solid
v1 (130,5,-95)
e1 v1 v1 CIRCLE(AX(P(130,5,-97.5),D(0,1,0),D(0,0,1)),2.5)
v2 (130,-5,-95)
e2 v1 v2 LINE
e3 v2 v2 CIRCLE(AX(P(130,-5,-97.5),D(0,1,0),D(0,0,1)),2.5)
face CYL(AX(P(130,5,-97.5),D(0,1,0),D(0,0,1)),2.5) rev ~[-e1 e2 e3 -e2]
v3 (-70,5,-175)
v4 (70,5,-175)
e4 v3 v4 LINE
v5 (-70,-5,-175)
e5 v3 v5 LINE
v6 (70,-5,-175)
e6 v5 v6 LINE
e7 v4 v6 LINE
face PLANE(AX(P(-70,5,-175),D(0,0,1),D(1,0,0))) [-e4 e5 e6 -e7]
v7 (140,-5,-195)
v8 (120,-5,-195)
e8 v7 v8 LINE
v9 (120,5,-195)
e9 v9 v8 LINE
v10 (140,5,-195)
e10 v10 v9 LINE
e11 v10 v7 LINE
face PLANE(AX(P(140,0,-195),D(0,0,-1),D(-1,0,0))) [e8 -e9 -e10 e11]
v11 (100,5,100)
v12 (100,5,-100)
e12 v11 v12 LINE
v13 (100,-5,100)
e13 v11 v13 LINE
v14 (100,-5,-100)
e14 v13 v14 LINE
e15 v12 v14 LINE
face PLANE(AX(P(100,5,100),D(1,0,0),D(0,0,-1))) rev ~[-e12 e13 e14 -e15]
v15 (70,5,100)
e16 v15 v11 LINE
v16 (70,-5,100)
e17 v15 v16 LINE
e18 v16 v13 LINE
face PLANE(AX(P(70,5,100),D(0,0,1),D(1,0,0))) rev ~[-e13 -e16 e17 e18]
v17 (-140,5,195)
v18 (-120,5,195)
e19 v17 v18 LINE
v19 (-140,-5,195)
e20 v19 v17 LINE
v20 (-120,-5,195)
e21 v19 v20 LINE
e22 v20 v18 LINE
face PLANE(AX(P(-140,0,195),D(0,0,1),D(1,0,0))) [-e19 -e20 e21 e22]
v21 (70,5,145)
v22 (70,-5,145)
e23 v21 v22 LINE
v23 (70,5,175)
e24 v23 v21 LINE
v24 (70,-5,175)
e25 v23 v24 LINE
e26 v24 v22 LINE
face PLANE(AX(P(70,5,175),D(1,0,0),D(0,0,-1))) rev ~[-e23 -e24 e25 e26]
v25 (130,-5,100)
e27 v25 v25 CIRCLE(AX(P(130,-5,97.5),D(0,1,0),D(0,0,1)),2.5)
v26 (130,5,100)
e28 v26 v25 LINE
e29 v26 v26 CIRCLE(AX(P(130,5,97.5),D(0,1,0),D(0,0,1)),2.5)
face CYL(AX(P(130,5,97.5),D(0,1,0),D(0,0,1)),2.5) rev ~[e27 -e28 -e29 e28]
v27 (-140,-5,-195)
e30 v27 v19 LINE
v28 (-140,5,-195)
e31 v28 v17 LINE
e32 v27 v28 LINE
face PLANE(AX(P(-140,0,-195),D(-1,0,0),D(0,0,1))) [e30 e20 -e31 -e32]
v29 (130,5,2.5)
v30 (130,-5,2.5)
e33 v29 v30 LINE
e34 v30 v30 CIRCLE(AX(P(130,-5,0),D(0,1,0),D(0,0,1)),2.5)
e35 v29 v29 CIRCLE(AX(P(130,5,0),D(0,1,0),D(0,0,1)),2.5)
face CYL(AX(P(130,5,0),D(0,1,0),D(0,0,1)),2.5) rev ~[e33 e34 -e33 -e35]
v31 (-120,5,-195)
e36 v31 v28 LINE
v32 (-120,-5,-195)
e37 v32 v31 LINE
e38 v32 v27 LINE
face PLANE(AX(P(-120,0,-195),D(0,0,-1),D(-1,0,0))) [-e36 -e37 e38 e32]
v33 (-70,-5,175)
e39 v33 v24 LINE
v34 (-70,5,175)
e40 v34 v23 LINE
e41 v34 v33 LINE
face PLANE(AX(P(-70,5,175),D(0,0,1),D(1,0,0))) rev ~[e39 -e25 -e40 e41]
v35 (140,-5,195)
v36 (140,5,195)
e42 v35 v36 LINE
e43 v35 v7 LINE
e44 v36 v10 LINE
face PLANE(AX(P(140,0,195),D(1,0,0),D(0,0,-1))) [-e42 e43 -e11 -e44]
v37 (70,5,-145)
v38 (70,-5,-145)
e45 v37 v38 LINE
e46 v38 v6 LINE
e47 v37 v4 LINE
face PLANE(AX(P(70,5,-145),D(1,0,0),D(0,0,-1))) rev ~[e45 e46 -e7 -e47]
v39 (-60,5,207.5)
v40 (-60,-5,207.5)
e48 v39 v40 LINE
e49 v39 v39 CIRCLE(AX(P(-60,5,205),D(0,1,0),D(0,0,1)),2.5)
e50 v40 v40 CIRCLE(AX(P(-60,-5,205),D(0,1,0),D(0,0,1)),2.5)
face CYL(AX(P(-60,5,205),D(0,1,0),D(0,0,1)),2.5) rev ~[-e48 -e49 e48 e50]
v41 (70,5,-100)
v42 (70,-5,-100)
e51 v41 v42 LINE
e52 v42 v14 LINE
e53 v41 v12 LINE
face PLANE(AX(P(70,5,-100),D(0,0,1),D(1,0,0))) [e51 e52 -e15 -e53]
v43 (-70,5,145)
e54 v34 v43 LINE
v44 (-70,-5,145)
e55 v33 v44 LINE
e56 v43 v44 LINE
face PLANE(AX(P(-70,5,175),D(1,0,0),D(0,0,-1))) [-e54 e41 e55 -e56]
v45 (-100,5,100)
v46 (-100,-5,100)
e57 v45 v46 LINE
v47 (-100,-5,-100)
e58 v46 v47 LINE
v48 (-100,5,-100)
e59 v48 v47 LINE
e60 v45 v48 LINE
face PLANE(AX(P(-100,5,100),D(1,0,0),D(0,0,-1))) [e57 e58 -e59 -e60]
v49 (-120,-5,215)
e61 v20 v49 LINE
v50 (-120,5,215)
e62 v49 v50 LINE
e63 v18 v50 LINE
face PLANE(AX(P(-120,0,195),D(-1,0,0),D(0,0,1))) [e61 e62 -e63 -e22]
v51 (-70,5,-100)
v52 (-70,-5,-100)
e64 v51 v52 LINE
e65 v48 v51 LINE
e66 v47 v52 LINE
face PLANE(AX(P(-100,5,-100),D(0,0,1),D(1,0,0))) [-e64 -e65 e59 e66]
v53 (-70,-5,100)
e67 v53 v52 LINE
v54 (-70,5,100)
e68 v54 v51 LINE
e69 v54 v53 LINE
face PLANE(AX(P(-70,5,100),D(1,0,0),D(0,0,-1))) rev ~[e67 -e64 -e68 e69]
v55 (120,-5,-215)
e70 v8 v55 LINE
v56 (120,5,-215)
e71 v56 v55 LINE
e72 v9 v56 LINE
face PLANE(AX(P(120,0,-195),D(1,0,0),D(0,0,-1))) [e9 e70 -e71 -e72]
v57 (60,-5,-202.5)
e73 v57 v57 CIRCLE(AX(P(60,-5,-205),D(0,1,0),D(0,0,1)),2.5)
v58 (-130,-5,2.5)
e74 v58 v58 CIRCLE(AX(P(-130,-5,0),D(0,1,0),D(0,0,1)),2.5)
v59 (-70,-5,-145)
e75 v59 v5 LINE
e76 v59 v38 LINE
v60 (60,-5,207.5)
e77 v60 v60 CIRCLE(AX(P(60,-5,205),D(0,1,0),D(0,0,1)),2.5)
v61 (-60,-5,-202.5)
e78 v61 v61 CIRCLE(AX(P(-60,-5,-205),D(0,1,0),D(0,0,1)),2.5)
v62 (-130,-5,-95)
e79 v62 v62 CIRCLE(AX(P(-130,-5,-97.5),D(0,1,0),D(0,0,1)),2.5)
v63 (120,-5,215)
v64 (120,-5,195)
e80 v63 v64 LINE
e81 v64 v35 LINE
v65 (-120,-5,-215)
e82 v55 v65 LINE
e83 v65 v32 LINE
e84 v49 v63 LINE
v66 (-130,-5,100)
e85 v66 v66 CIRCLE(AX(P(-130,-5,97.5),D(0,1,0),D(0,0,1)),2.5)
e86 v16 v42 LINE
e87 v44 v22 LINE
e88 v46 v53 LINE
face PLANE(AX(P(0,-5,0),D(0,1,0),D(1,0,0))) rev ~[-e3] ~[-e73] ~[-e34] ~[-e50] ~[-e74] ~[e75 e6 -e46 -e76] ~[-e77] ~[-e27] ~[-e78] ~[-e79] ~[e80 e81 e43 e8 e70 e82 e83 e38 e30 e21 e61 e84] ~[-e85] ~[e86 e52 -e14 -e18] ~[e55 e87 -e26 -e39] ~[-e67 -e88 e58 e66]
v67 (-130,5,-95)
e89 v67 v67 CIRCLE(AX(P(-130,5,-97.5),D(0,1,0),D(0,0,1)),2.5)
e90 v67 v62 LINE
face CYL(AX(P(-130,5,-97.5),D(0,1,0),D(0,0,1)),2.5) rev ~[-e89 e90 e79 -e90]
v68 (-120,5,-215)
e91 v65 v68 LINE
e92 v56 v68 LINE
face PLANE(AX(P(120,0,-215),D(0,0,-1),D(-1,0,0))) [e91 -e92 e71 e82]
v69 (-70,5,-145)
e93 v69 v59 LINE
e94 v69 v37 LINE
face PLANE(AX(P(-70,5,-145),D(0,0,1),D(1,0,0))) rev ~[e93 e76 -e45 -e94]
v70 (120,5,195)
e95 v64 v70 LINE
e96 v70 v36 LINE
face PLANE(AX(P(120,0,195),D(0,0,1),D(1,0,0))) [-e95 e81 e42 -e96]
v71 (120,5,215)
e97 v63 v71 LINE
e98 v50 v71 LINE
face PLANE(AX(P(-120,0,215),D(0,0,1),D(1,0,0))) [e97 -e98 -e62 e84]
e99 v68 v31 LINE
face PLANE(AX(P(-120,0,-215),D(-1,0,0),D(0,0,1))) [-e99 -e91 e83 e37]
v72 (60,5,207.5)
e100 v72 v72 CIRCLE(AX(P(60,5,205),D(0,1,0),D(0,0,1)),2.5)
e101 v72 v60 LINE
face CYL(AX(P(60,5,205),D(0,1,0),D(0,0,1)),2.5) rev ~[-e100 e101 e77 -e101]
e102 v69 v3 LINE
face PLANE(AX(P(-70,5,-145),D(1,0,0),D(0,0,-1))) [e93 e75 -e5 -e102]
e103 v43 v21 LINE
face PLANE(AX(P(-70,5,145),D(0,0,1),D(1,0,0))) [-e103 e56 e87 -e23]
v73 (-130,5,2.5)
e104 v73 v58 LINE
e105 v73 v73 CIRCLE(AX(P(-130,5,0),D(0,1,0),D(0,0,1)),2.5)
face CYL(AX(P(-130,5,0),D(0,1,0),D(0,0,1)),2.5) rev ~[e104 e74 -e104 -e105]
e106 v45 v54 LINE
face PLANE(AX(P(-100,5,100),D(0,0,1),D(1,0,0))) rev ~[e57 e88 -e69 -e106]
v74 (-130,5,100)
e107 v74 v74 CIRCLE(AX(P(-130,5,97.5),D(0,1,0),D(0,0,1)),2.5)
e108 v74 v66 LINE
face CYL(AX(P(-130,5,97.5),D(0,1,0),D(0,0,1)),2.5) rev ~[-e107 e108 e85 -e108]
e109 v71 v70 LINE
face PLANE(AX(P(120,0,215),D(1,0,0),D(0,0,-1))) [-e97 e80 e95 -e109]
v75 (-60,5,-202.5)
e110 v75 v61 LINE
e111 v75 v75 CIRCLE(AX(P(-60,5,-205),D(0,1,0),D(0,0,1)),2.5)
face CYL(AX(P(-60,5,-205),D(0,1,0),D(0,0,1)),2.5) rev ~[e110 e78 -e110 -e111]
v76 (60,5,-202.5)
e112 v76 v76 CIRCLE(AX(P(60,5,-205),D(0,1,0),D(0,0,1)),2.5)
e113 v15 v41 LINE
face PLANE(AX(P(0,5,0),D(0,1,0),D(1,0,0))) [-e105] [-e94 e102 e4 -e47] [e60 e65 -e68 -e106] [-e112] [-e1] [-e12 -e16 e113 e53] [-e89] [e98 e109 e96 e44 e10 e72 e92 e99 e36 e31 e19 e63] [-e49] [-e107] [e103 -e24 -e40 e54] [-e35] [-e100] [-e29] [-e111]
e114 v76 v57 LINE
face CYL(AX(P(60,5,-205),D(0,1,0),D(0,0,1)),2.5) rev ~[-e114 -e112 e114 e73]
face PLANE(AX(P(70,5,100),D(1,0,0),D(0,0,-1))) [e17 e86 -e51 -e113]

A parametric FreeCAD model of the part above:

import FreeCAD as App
import Part
import Sketcher

V = App.Vector

doc = App.newDocument("Part")
body = doc.addObject("PartDesign::Body", "Body")

# Sketch on XZ plane
sketch1 = body.newObject("Sketcher::SketchObject", "Sketch")
sketch1.AttachmentSupport = (doc.getObject("XZ_Plane"), [""])
sketch1.MapMode = "FlatFace"
sketch1.addGeometry(Part.LineSegment(V(120, -215, 0), V(-120, -215, 0)), False)
sketch1.addGeometry(Part.LineSegment(V(-120, -215, 0), V(-120, -195, 0)), False)
sketch1.addGeometry(Part.LineSegment(V(-120, -195, 0), V(-140, -195, 0)), False)
sketch1.addGeometry(Part.LineSegment(V(-140, -195, 0), V(-140, 195, 0)), False)
sketch1.addGeometry(Part.LineSegment(V(-140, 195, 0), V(-120, 195, 0)), False)
sketch1.addGeometry(Part.LineSegment(V(-120, 195, 0), V(-120, 215, 0)), False)
sketch1.addGeometry(Part.LineSegment(V(-120, 215, 0), V(120, 215, 0)), False)
sketch1.addGeometry(Part.LineSegment(V(120, 215, 0), V(120, 195, 0)), False)
sketch1.addGeometry(Part.LineSegment(V(120, 195, 0), V(140, 195, 0)), False)
sketch1.addGeometry(Part.LineSegment(V(140, 195, 0), V(140, -195, 0)), False)
sketch1.addGeometry(Part.LineSegment(V(140, -195, 0), V(120, -195, 0)), False)
sketch1.addGeometry(Part.LineSegment(V(120, -195, 0), V(120, -215, 0)), False)
sketch1.addConstraint(Sketcher.Constraint("Coincident", 0, 2, 1, 1))
sketch1.addConstraint(Sketcher.Constraint("Coincident", 1, 2, 2, 1))
sketch1.addConstraint(Sketcher.Constraint("Coincident", 2, 2, 3, 1))
sketch1.addConstraint(Sketcher.Constraint("Coincident", 3, 2, 4, 1))
sketch1.addConstraint(Sketcher.Constraint("Coincident", 4, 2, 5, 1))
sketch1.addConstraint(Sketcher.Constraint("Coincident", 5, 2, 6, 1))
sketch1.addConstraint(Sketcher.Constraint("Coincident", 6, 2, 7, 1))
sketch1.addConstraint(Sketcher.Constraint("Coincident", 7, 2, 8, 1))
sketch1.addConstraint(Sketcher.Constraint("Coincident", 8, 2, 9, 1))
sketch1.addConstraint(Sketcher.Constraint("Coincident", 9, 2, 10, 1))
sketch1.addConstraint(Sketcher.Constraint("Coincident", 10, 2, 11, 1))
sketch1.addConstraint(Sketcher.Constraint("Coincident", 11, 2, 0, 1))
sketch1.addConstraint(Sketcher.Constraint("Horizontal", 0))
sketch1.addConstraint(Sketcher.Constraint("Vertical", 1))
sketch1.addConstraint(Sketcher.Constraint("Horizontal", 2))
sketch1.addConstraint(Sketcher.Constraint("Vertical", 3))
sketch1.addConstraint(Sketcher.Constraint("Horizontal", 4))
sketch1.addConstraint(Sketcher.Constraint("Vertical", 5))
sketch1.addConstraint(Sketcher.Constraint("Horizontal", 6))
sketch1.addConstraint(Sketcher.Constraint("Vertical", 7))
sketch1.addConstraint(Sketcher.Constraint("Horizontal", 8))
sketch1.addConstraint(Sketcher.Constraint("Vertical", 9))
sketch1.addConstraint(Sketcher.Constraint("Horizontal", 10))
sketch1.addConstraint(Sketcher.Constraint("Vertical", 11))
sketch1.addConstraint(Sketcher.Constraint("Symmetric", 0, 2, 6, 2, -1, 1))
sketch1.addConstraint(Sketcher.Constraint("Symmetric", 2, 2, 8, 2, -1, 1))
sketch1.addConstraint(Sketcher.Constraint("Symmetric", 4, 2, 10, 2, -1, 1))
sketch1.addConstraint(Sketcher.Constraint("Symmetric", 4, 2, 7, 2, -2))
sketch1.addConstraint(Sketcher.Constraint("Equal", 10, 1))
sketch1.addConstraint(Sketcher.Constraint("DistanceX", 0, 2, 0, 1, 240.0))
sketch1.addConstraint(Sketcher.Constraint("DistanceX", 2, 2, 2, 1, 20.0))
sketch1.addConstraint(Sketcher.Constraint("DistanceY", 3, 1, 3, 2, 390.0))
pad1 = body.newObject("PartDesign::Pad", "Pad")
pad1.Profile = sketch1
pad1.Length = 10
pad1.Midplane = True

# Sketch on XZ plane
sketch2 = body.newObject("Sketcher::SketchObject", "Sketch001")
sketch2.AttachmentSupport = (doc.getObject("XZ_Plane"), [""])
sketch2.MapMode = "FlatFace"
sketch2.AttachmentOffset = App.Placement(V(0, 0, -5), App.Rotation())
sketch2.addGeometry(Part.Circle(V(-60, -205, 0), V(0, 0, 1), 2.5), False)
sketch2.addGeometry(Part.Circle(V(60, -205, 0), V(0, 0, 1), 2.5), False)
sketch2.addGeometry(Part.Circle(V(130, -97.5, 0), V(0, 0, 1), 2.5), False)
sketch2.addGeometry(Part.Circle(V(130, 97.5, 0), V(0, 0, 1), 2.5), False)
sketch2.addGeometry(Part.Circle(V(130, 0, 0), V(0, 0, 1), 2.5), False)
sketch2.addGeometry(Part.Circle(V(60, 205, 0), V(0, 0, 1), 2.5), False)
sketch2.addGeometry(Part.Circle(V(-60, 205, 0), V(0, 0, 1), 2.5), False)
sketch2.addGeometry(Part.Circle(V(-130, -97.5, 0), V(0, 0, 1), 2.5), False)
sketch2.addGeometry(Part.Circle(V(-130, 0, 0), V(0, 0, 1), 2.5), False)
sketch2.addGeometry(Part.Circle(V(-130, 97.5, 0), V(0, 0, 1), 2.5), False)
sketch2.addGeometry(Part.LineSegment(V(70, -100, 0), V(70, 100, 0)), False)
sketch2.addGeometry(Part.LineSegment(V(70, 100, 0), V(100, 100, 0)), False)
sketch2.addGeometry(Part.LineSegment(V(100, 100, 0), V(100, -100, 0)), False)
sketch2.addGeometry(Part.LineSegment(V(100, -100, 0), V(70, -100, 0)), False)
sketch2.addGeometry(Part.LineSegment(V(-100, -100, 0), V(-100, 100, 0)), False)
sketch2.addGeometry(Part.LineSegment(V(-100, 100, 0), V(-70, 100, 0)), False)
sketch2.addGeometry(Part.LineSegment(V(-70, 100, 0), V(-70, -100, 0)), False)
sketch2.addGeometry(Part.LineSegment(V(-70, -100, 0), V(-100, -100, 0)), False)
sketch2.addGeometry(Part.LineSegment(V(-70, -175, 0), V(-70, -145, 0)), False)
sketch2.addGeometry(Part.LineSegment(V(-70, -145, 0), V(70, -145, 0)), False)
sketch2.addGeometry(Part.LineSegment(V(70, -145, 0), V(70, -175, 0)), False)
sketch2.addGeometry(Part.LineSegment(V(70, -175, 0), V(-70, -175, 0)), False)
sketch2.addGeometry(Part.LineSegment(V(-70, 145, 0), V(-70, 175, 0)), False)
sketch2.addGeometry(Part.LineSegment(V(-70, 175, 0), V(70, 175, 0)), False)
sketch2.addGeometry(Part.LineSegment(V(70, 175, 0), V(70, 145, 0)), False)
sketch2.addGeometry(Part.LineSegment(V(70, 145, 0), V(-70, 145, 0)), False)
sketch2.addConstraint(Sketcher.Constraint("Coincident", 10, 2, 11, 1))
sketch2.addConstraint(Sketcher.Constraint("Coincident", 11, 2, 12, 1))
sketch2.addConstraint(Sketcher.Constraint("Coincident", 12, 2, 13, 1))
sketch2.addConstraint(Sketcher.Constraint("Coincident", 13, 2, 10, 1))
sketch2.addConstraint(Sketcher.Constraint("Coincident", 14, 2, 15, 1))
sketch2.addConstraint(Sketcher.Constraint("Coincident", 15, 2, 16, 1))
sketch2.addConstraint(Sketcher.Constraint("Coincident", 16, 2, 17, 1))
sketch2.addConstraint(Sketcher.Constraint("Coincident", 17, 2, 14, 1))
sketch2.addConstraint(Sketcher.Constraint("Coincident", 18, 2, 19, 1))
sketch2.addConstraint(Sketcher.Constraint("Coincident", 19, 2, 20, 1))
sketch2.addConstraint(Sketcher.Constraint("Coincident", 20, 2, 21, 1))
sketch2.addConstraint(Sketcher.Constraint("Coincident", 21, 2, 18, 1))
sketch2.addConstraint(Sketcher.Constraint("Coincident", 22, 2, 23, 1))
sketch2.addConstraint(Sketcher.Constraint("Coincident", 23, 2, 24, 1))
sketch2.addConstraint(Sketcher.Constraint("Coincident", 24, 2, 25, 1))
sketch2.addConstraint(Sketcher.Constraint("Coincident", 25, 2, 22, 1))
sketch2.addConstraint(Sketcher.Constraint("Vertical", 10))
sketch2.addConstraint(Sketcher.Constraint("Horizontal", 11))
sketch2.addConstraint(Sketcher.Constraint("Vertical", 12))
sketch2.addConstraint(Sketcher.Constraint("Horizontal", 13))
sketch2.addConstraint(Sketcher.Constraint("Vertical", 14))
sketch2.addConstraint(Sketcher.Constraint("Horizontal", 15))
sketch2.addConstraint(Sketcher.Constraint("Vertical", 16))
sketch2.addConstraint(Sketcher.Constraint("Horizontal", 17))
sketch2.addConstraint(Sketcher.Constraint("Vertical", 18))
sketch2.addConstraint(Sketcher.Constraint("Horizontal", 19))
sketch2.addConstraint(Sketcher.Constraint("Vertical", 20))
sketch2.addConstraint(Sketcher.Constraint("Horizontal", 21))
sketch2.addConstraint(Sketcher.Constraint("Vertical", 22))
sketch2.addConstraint(Sketcher.Constraint("Horizontal", 23))
sketch2.addConstraint(Sketcher.Constraint("Vertical", 24))
sketch2.addConstraint(Sketcher.Constraint("Horizontal", 25))
sketch2.addConstraint(Sketcher.Constraint("Equal", 0, 1))
sketch2.addConstraint(Sketcher.Constraint("Equal", 1, 2))
sketch2.addConstraint(Sketcher.Constraint("Equal", 2, 3))
sketch2.addConstraint(Sketcher.Constraint("Equal", 3, 4))
sketch2.addConstraint(Sketcher.Constraint("Equal", 4, 5))
sketch2.addConstraint(Sketcher.Constraint("Equal", 5, 6))
sketch2.addConstraint(Sketcher.Constraint("Equal", 6, 7))
sketch2.addConstraint(Sketcher.Constraint("Equal", 7, 8))
sketch2.addConstraint(Sketcher.Constraint("Equal", 8, 9))
sketch2.addConstraint(Sketcher.Constraint("Symmetric", 0, 3, 5, 3, -1, 1))
sketch2.addConstraint(Sketcher.Constraint("Symmetric", 1, 3, 6, 3, -1, 1))
sketch2.addConstraint(Sketcher.Constraint("Symmetric", 3, 3, 7, 3, -1, 1))
sketch2.addConstraint(Sketcher.Constraint("Symmetric", 4, 3, 8, 3, -1, 1))
sketch2.addConstraint(Sketcher.Constraint("Symmetric", 2, 3, 9, 3, -1, 1))
sketch2.addConstraint(Sketcher.Constraint("Symmetric", 12, 2, 14, 2, -1, 1))
sketch2.addConstraint(Sketcher.Constraint("Symmetric", 10, 2, 16, 2, -1, 1))
sketch2.addConstraint(Sketcher.Constraint("Symmetric", 20, 2, 22, 2, -1, 1))
sketch2.addConstraint(Sketcher.Constraint("Symmetric", 18, 2, 24, 2, -1, 1))
sketch2.addConstraint(Sketcher.Constraint("Symmetric", 0, 3, 1, 3, -2))
sketch2.addConstraint(Sketcher.Constraint("Symmetric", 2, 3, 7, 3, -2))
sketch2.addConstraint(Sketcher.Constraint("PointOnObject", 4, 3, -1))
sketch2.addConstraint(Sketcher.Constraint("Horizontal", 11, 2, 14, 2))
sketch2.addConstraint(Sketcher.Constraint("Vertical", 3, 3, 4, 3))
sketch2.addConstraint(Sketcher.Constraint("Vertical", 16, 2, 18, 2))
sketch2.addConstraint(Sketcher.Constraint("Vertical", 13, 2, 19, 2))
sketch2.addConstraint(Sketcher.Constraint("Equal", 17, 18))
sketch2.addConstraint(Sketcher.Constraint("Diameter", 0, 5.0))
sketch2.addConstraint(Sketcher.Constraint("DistanceX", 11, 1, 11, 2, 30.0))
sketch2.addConstraint(Sketcher.Constraint("DistanceX", 19, 1, 19, 2, 140.0))
sketch2.addConstraint(Sketcher.Constraint("DistanceY", 10, 1, 10, 2, 200.0))
sketch2.addConstraint(Sketcher.Constraint("DistanceX", 0, 3, -1, 1, 60.0))
sketch2.addConstraint(Sketcher.Constraint("DistanceY", 0, 3, -1, 1, 205.0))
sketch2.addConstraint(Sketcher.Constraint("DistanceX", -1, 1, 2, 3, 130.0))
sketch2.addConstraint(Sketcher.Constraint("DistanceY", 18, 2, -1, 1, 145.0))
sketch2.addConstraint(Sketcher.Constraint("DistanceY", 2, 3, 3, 3, 195.0))
pocket1 = body.newObject("PartDesign::Pocket", "Pocket")
pocket1.Profile = sketch2
pocket1.Length = 10
pocket1.Reversed = True

doc.recompute()
